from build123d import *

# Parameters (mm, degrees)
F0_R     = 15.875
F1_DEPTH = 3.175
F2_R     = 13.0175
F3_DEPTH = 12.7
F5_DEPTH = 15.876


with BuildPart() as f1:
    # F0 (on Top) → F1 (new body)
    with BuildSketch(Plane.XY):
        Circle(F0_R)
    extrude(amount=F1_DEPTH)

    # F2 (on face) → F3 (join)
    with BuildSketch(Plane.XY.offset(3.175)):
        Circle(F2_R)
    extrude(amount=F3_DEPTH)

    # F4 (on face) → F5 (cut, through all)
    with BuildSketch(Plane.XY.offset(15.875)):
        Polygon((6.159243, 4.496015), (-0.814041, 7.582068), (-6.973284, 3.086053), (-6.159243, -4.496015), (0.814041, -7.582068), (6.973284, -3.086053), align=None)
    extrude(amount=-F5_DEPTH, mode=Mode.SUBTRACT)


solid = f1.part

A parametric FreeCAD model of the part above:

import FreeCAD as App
import Part
import Sketcher
from FreeCAD import Vector
Q = App.Units.Quantity

doc = App.newDocument("Part")
params = doc.addObject("Spreadsheet::Sheet", "Params")
for row, (alias, value) in enumerate([
    ("sketch1_diameter", "1.25 in"),
    ("pad1_length", "0.125 in"),
    ("sketch2_diameter", "1.025 in"),
    ("pad2_length", "0.5 in"),
], start=1):
    params.set(f"A{row}", alias)
    params.set(f"B{row}", "=" + value)
    params.setAlias(f"B{row}", alias)

body = doc.addObject("PartDesign::Body", "Body")

sketch1 = body.newObject("Sketcher::SketchObject", "Sketch")
sketch1.AttachmentSupport = (doc.getObject("XY_Plane"), [""])
sketch1.MapMode = "FlatFace"
sketch1.addGeometry(Part.Circle(Vector(0, 0, 0), Vector(0, 0, 1), 16), False)
sketch1.addConstraint([
    Sketcher.Constraint("Coincident", 0, 3, -1, 1),
    Sketcher.Constraint("Diameter", 0, Q("1.25 in")),
])
sketch1.setExpression("Constraints[1]", "Params.sketch1_diameter")
pad1 = body.newObject("PartDesign::Pad", "Pad")
pad1.Profile = sketch1
pad1.setExpression("Length", "Params.pad1_length")

sketch2 = body.newObject("Sketcher::SketchObject", "Sketch001")
sketch2.AttachmentSupport = (doc.getObject("XY_Plane"), [""])
sketch2.MapMode = "FlatFace"
sketch2.AttachmentOffset = App.Placement(Vector(0, 0, 0.125 * 25.4), App.Rotation())
sketch2.addGeometry(Part.Circle(Vector(0, 0, 0), Vector(0, 0, 1), 13), False)
sketch2.addConstraint([
    Sketcher.Constraint("Coincident", 0, 3, -1, 1),
    Sketcher.Constraint("Diameter", 0, Q("1.025 in")),
])
sketch2.setExpression("Constraints[1]", "Params.sketch2_diameter")
pad2 = body.newObject("PartDesign::Pad", "Pad001")
pad2.Profile = sketch2
pad2.setExpression("Length", "Params.pad2_length")

sketch3 = body.newObject("Sketcher::SketchObject", "Sketch002")
sketch3.AttachmentSupport = (doc.getObject("XY_Plane"), [""])
sketch3.MapMode = "FlatFace"
sketch3.AttachmentOffset = App.Placement(Vector(0, 0, 0.625 * 25.4), App.Rotation())
sketch3.addGeometry([
    Part.LineSegment(Vector(6, 4, 0), Vector(-1, 8, 0)),
    Part.LineSegment(Vector(-1, 8, 0), Vector(-7, 3, 0)),
    Part.LineSegment(Vector(-7, 3, 0), Vector(-6, -4, 0)),
    Part.LineSegment(Vector(-6, -4, 0), Vector(1, -8, 0)),
    Part.LineSegment(Vector(1, -8, 0), Vector(7, -3, 0)),
    Part.LineSegment(Vector(7, -3, 0), Vector(6, 4, 0)),
], False)
sketch3.addConstraint([
    Sketcher.Constraint("Coincident", 0, 2, 1, 1),
    Sketcher.Constraint("Coincident", 1, 2, 2, 1),
    Sketcher.Constraint("Coincident", 2, 2, 3, 1),
    Sketcher.Constraint("Coincident", 3, 2, 4, 1),
    Sketcher.Constraint("Coincident", 4, 2, 5, 1),
    Sketcher.Constraint("Coincident", 5, 2, 0, 1),
    Sketcher.Constraint("Symmetric", 0, 2, 3, 2, -1, 1),
    Sketcher.Constraint("Symmetric", 1, 2, 4, 2, -1, 1),
    Sketcher.Constraint("Symmetric", 2, 2, 5, 2, -1, 1),
    Sketcher.Constraint("Equal", 0, 1),
    Sketcher.Constraint("Equal", 1, 2),
    Sketcher.Constraint("Distance", 0, 7.625642),
    Sketcher.Constraint("DistanceX", 0, 2, -1, 1, 0.814041),
    Sketcher.Constraint("DistanceX", 1, 2, 2, 2, 0.814041),
    Sketcher.Constraint("DistanceY", 3, 2, 1, 2, 10.668121),
])
pocket1 = body.newObject("PartDesign::Pocket", "Pocket")
pocket1.Profile = sketch3
pocket1.Type = "ThroughAll"

doc.recompute()
